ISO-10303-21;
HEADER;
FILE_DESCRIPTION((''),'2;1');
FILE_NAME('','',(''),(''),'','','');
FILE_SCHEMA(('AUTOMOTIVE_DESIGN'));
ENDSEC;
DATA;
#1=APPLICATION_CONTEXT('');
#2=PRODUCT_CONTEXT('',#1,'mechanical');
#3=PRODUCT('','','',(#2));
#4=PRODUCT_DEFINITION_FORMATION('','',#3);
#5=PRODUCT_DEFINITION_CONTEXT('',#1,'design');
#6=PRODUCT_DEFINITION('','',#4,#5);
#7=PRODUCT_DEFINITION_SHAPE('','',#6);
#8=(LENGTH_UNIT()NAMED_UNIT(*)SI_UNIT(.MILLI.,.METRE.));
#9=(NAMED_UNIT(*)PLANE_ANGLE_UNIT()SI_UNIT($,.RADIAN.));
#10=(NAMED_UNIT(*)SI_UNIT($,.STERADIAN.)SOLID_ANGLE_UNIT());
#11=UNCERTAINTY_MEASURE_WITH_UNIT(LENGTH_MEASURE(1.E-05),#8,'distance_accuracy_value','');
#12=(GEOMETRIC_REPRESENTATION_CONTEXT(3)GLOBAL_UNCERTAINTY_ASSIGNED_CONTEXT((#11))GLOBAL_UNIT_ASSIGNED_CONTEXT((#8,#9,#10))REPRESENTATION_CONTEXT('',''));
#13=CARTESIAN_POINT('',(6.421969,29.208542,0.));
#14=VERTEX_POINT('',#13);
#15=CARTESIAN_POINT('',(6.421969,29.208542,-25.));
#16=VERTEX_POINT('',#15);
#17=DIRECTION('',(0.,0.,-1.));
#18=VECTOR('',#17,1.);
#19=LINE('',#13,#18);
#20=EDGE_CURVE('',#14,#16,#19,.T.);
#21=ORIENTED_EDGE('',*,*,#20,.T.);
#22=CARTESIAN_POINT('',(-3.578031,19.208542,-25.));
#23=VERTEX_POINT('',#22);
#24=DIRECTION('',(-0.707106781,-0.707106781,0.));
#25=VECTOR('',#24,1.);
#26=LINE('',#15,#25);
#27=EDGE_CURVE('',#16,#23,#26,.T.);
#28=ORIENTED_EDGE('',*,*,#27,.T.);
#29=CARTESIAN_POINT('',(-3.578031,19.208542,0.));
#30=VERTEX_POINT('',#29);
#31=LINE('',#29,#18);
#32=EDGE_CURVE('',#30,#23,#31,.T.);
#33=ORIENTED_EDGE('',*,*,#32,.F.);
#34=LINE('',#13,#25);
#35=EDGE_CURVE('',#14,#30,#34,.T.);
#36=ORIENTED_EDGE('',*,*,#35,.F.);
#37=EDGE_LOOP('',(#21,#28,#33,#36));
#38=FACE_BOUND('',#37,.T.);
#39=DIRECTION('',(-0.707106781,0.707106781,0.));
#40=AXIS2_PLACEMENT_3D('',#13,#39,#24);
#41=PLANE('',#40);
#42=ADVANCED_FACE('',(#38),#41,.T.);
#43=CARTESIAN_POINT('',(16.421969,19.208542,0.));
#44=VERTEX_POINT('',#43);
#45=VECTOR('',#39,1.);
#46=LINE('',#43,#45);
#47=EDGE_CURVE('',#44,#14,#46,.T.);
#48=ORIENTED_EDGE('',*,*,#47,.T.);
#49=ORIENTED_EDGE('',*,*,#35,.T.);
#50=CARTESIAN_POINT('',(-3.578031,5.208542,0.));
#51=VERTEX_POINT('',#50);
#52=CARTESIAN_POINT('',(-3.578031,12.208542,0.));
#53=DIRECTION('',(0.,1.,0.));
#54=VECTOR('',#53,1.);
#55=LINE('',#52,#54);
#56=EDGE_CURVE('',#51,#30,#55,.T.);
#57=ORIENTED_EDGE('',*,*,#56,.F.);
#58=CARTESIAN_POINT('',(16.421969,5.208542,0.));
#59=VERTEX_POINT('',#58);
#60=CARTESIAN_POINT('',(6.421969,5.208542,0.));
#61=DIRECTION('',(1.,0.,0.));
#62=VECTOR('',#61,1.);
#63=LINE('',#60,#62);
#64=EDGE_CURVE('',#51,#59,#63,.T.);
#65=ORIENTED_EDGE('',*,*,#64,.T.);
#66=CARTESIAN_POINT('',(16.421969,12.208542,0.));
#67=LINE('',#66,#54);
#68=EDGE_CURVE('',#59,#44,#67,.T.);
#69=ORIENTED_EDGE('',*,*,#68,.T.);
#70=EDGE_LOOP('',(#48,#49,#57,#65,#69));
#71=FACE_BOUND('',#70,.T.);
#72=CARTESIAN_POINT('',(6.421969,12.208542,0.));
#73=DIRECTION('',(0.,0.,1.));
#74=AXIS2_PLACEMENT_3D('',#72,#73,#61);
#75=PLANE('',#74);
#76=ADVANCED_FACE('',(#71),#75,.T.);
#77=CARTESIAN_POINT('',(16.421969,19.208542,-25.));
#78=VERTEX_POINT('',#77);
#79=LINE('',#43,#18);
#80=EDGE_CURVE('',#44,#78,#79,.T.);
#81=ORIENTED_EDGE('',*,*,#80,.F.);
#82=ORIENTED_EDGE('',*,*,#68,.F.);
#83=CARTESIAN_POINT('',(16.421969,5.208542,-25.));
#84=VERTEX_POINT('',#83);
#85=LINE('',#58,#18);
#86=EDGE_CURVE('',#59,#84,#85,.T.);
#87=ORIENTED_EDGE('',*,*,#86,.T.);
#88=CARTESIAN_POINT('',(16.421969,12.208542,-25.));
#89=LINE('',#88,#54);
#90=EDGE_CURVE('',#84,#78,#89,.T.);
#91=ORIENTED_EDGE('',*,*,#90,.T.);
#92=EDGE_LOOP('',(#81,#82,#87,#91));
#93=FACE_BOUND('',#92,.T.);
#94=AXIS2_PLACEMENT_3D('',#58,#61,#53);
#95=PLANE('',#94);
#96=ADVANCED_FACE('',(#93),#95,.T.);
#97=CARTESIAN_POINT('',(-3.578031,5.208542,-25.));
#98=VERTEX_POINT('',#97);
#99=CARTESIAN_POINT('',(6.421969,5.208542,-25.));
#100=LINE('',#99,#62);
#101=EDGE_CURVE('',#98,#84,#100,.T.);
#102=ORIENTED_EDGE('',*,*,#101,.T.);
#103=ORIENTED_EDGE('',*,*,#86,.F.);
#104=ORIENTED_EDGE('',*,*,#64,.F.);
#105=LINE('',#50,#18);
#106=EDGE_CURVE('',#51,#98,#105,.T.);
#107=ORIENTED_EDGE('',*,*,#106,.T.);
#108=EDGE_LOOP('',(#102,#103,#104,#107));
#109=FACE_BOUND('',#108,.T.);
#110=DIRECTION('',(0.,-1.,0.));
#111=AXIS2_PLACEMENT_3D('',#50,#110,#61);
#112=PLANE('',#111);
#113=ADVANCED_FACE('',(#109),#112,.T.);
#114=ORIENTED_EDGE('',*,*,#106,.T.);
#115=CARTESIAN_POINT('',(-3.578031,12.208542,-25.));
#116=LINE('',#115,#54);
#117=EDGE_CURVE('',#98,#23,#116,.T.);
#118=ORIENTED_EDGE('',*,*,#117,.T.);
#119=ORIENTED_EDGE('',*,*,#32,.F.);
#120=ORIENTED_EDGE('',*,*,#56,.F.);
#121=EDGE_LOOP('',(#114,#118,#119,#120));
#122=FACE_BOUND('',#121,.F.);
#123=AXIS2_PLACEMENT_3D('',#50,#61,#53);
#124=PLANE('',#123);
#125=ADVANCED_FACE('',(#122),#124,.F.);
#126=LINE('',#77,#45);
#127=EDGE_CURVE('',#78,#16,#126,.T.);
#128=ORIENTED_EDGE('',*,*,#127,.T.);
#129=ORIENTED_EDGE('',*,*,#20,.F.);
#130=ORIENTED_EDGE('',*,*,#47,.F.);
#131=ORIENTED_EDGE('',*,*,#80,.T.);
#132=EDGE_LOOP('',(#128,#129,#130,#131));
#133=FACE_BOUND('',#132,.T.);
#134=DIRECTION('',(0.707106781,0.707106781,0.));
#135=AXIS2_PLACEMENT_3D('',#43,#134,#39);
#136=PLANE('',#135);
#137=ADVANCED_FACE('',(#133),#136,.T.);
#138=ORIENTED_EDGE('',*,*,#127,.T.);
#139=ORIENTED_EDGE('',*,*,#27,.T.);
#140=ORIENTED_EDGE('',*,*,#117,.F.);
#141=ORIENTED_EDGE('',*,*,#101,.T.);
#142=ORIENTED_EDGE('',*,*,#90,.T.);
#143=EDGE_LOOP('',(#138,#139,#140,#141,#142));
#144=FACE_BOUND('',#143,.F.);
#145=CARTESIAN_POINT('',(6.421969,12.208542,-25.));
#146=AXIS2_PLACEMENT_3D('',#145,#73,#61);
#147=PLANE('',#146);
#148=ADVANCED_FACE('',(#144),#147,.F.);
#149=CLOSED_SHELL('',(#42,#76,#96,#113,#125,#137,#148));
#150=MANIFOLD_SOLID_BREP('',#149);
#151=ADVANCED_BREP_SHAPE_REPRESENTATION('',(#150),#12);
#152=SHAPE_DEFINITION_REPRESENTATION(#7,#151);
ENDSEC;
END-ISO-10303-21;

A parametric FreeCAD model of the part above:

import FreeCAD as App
import Part
import Sketcher
Q = App.Units.Quantity

doc = App.newDocument("Part")
body = doc.addObject("PartDesign::Body", "Body")

sketch1 = body.newObject("Sketcher::SketchObject", "Sketch")
sketch1.AttachmentSupport = (doc.getObject("XY_Plane"), [""])
sketch1.MapMode = "FlatFace"
sketch1.addGeometry([
    Part.LineSegment(App.Vector(-4, 19, 0), App.Vector(-4, 5, 0)),
    Part.LineSegment(App.Vector(-4, 5, 0), App.Vector(16, 5, 0)),
    Part.LineSegment(App.Vector(16, 5, 0), App.Vector(16, 19, 0)),
    Part.LineSegment(App.Vector(16, 19, 0), App.Vector(6, 29, 0)),
    Part.LineSegment(App.Vector(6, 29, 0), App.Vector(-4, 19, 0)),
], False)
sketch1.addConstraint([
    Sketcher.Constraint("Coincident", 0, 2, 1, 1),
    Sketcher.Constraint("Coincident", 1, 2, 2, 1),
    Sketcher.Constraint("Coincident", 2, 2, 3, 1),
    Sketcher.Constraint("Coincident", 3, 2, 4, 1),
    Sketcher.Constraint("Coincident", 4, 2, 0, 1),
    Sketcher.Constraint("Vertical", 0),
    Sketcher.Constraint("Horizontal", 1),
    Sketcher.Constraint("Vertical", 2),
    Sketcher.Constraint("Perpendicular", 3, 4),
    Sketcher.Constraint("Horizontal", 2, 2, 4, 2),
    Sketcher.Constraint("Equal", 3, 4),
    Sketcher.Constraint("DistanceX", 1, 1, 1, 2, Q("20 mm")),
    Sketcher.Constraint("DistanceY", 0, 2, 0, 1, Q("14 mm")),
    Sketcher.Constraint("DistanceX", 0, 2, -1, 1, Q("3.578031 mm")),
    Sketcher.Constraint("DistanceY", -1, 1, 0, 2, Q("5.208542 mm")),
])
pad1 = body.newObject("PartDesign::Pad", "Pad")
pad1.Profile = sketch1
pad1.Length = 25
pad1.Reversed = True

doc.recompute()
